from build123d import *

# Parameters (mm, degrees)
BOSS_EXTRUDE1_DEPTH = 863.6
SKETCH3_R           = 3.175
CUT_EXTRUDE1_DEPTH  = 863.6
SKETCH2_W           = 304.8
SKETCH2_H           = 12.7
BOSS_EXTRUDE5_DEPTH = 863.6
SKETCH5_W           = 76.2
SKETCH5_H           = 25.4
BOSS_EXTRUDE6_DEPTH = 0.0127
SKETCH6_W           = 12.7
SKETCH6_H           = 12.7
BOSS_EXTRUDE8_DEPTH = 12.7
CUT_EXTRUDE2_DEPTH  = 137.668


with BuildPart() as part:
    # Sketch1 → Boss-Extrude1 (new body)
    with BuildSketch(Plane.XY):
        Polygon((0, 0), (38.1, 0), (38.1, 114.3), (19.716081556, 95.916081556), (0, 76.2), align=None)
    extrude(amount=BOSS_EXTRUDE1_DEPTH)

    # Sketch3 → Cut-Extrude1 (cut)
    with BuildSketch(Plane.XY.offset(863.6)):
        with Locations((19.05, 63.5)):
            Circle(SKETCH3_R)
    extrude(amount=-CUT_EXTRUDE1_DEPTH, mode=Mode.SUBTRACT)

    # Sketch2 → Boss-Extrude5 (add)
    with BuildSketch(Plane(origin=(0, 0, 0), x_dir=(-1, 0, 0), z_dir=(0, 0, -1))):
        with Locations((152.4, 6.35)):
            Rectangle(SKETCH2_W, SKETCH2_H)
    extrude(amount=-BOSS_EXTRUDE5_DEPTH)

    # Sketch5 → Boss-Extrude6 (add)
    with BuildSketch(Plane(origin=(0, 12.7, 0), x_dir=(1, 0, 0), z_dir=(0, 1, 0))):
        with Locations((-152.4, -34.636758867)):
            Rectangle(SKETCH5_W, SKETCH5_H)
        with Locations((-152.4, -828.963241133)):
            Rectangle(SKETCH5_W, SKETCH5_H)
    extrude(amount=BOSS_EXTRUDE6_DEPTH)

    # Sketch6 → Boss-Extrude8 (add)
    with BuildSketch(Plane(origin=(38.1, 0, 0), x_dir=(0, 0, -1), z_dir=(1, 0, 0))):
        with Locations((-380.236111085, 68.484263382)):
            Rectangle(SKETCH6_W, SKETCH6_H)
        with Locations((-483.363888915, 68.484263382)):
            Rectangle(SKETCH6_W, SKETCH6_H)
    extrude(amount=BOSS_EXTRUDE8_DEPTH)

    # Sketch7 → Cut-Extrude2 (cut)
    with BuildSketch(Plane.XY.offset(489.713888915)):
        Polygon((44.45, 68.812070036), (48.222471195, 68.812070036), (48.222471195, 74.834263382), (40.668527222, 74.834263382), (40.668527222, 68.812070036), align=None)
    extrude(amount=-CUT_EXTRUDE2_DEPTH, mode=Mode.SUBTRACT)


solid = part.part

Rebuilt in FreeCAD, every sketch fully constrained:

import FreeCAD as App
import Part
import Sketcher
Q = App.Units.Quantity

doc = App.newDocument("Part")
params = doc.addObject("Spreadsheet::Sheet", "Params")
for row, (alias, value) in enumerate([
    ("sketch1_height", "3 in"),
    ("sketch1_width", "1.5 in"),
    ("sketch1_height2", "4.5 in"),
    ("pad1_length", "34 in"),
    ("sketch2_diameter", "0.25 in"),
    ("pocket1_length", "34 in"),
    ("sketch3_width", "12 in"),
    ("sketch3_height", "0.5 in"),
    ("pad2_length", "34 in"),
    ("sketch4_width", "3 in"),
    ("sketch4_height", "1 in"),
    ("pad3_length", "0.0005 in"),
    ("sketch5_width", "0.5 in"),
    ("pad4_length", "0.5 in"),
    ("pocket2_length", "5.42 in"),
], start=1):
    params.set(f"A{row}", alias)
    params.set(f"B{row}", "=" + value)
    params.setAlias(f"B{row}", alias)

body = doc.addObject("PartDesign::Body", "Body")

# Sketch on XY plane
sketch1 = body.newObject("Sketcher::SketchObject", "Sketch")
sketch1.AttachmentSupport = (doc.getObject("XY_Plane"), [""])
sketch1.MapMode = "FlatFace"
sketch1.addGeometry(Part.LineSegment(App.Vector(0, 0, 0), App.Vector(38.1, 0, 0)), False)
sketch1.addGeometry(Part.LineSegment(App.Vector(38.1, 0, 0), App.Vector(38.1, 114.3, 0)), False)
sketch1.addGeometry(Part.LineSegment(App.Vector(38.1, 114.3, 0), App.Vector(0, 76.2, 0)), False)
sketch1.addGeometry(Part.LineSegment(App.Vector(0, 76.2, 0), App.Vector(0, 0, 0)), False)
sketch1.addConstraint(Sketcher.Constraint("Coincident", 0, 2, 1, 1))
sketch1.addConstraint(Sketcher.Constraint("Coincident", 1, 2, 2, 1))
sketch1.addConstraint(Sketcher.Constraint("Coincident", 2, 2, 3, 1))
sketch1.addConstraint(Sketcher.Constraint("Coincident", 3, 2, 0, 1))
sketch1.addConstraint(Sketcher.Constraint("Horizontal", 0))
sketch1.addConstraint(Sketcher.Constraint("Vertical", 1))
sketch1.addConstraint(Sketcher.Constraint("Vertical", 3))
sketch1.addConstraint(Sketcher.Constraint("Coincident", 3, 2, -1, 1))
sketch1.addConstraint(Sketcher.Constraint("DistanceY", 3, 2, 3, 1, Q("3 in")))
sketch1.addConstraint(Sketcher.Constraint("DistanceX", 0, 1, 0, 2, Q("1.5 in")))
sketch1.addConstraint(Sketcher.Constraint("DistanceY", 1, 1, 1, 2, Q("4.5 in")))
sketch1.setExpression("Constraints[8]", "Params.sketch1_height")
sketch1.setExpression("Constraints[9]", "Params.sketch1_width")
sketch1.setExpression("Constraints[10]", "Params.sketch1_height2")
pad1 = body.newObject("PartDesign::Pad", "Pad")
pad1.Profile = sketch1
pad1.setExpression("Length", "Params.pad1_length")

# Sketch on XY plane
sketch2 = body.newObject("Sketcher::SketchObject", "Sketch001")
sketch2.AttachmentSupport = (doc.getObject("XY_Plane"), [""])
sketch2.MapMode = "FlatFace"
sketch2.AttachmentOffset = App.Placement(App.Vector(0, 0, 34 * 25.4), App.Rotation())
sketch2.addGeometry(Part.Circle(App.Vector(19.05, 63.5, 0), App.Vector(0, 0, 1), 3.175), False)
sketch2.addConstraint(Sketcher.Constraint("Diameter", 0, Q("0.25 in")))
sketch2.addConstraint(Sketcher.Constraint("DistanceY", -1, 1, 0, 3, Q("2.5 in")))
sketch2.addConstraint(Sketcher.Constraint("DistanceX", -1, 1, 0, 3, Q("0.75 in")))
sketch2.setExpression("Constraints[0]", "Params.sketch2_diameter")
pocket1 = body.newObject("PartDesign::Pocket", "Pocket")
pocket1.Profile = sketch2
pocket1.setExpression("Length", "Params.pocket1_length")

# Sketch on XY plane
sketch3 = body.newObject("Sketcher::SketchObject", "Sketch002")
sketch3.AttachmentSupport = (doc.getObject("XY_Plane"), [""])
sketch3.MapMode = "FlatFace"
sketch3.addGeometry(Part.LineSegment(App.Vector(0, 12.7, 0), App.Vector(0, 0, 0)), False)
sketch3.addGeometry(Part.LineSegment(App.Vector(0, 0, 0), App.Vector(-304.8, 0, 0)), False)
sketch3.addGeometry(Part.LineSegment(App.Vector(-304.8, 0, 0), App.Vector(-304.8, 12.7, 0)), False)
sketch3.addGeometry(Part.LineSegment(App.Vector(-304.8, 12.7, 0), App.Vector(0, 12.7, 0)), False)
sketch3.addConstraint(Sketcher.Constraint("Coincident", 0, 2, 1, 1))
sketch3.addConstraint(Sketcher.Constraint("Coincident", 1, 2, 2, 1))
sketch3.addConstraint(Sketcher.Constraint("Coincident", 2, 2, 3, 1))
sketch3.addConstraint(Sketcher.Constraint("Coincident", 3, 2, 0, 1))
sketch3.addConstraint(Sketcher.Constraint("Vertical", 0))
sketch3.addConstraint(Sketcher.Constraint("Horizontal", 1))
sketch3.addConstraint(Sketcher.Constraint("Vertical", 2))
sketch3.addConstraint(Sketcher.Constraint("Horizontal", 3))
sketch3.addConstraint(Sketcher.Constraint("Coincident", 0, 2, -1, 1))
sketch3.addConstraint(Sketcher.Constraint("DistanceX", 1, 2, 1, 1, Q("12 in")))
sketch3.addConstraint(Sketcher.Constraint("DistanceY", 0, 2, 0, 1, Q("0.5 in")))
sketch3.setExpression("Constraints[9]", "Params.sketch3_width")
sketch3.setExpression("Constraints[10]", "Params.sketch3_height")
pad2 = body.newObject("PartDesign::Pad", "Pad001")
pad2.Profile = sketch3
pad2.setExpression("Length", "Params.pad2_length")

# Sketch on XZ plane
sketch4 = body.newObject("Sketcher::SketchObject", "Sketch003")
sketch4.AttachmentSupport = (doc.getObject("XZ_Plane"), [""])
sketch4.MapMode = "FlatFace"
sketch4.AttachmentOffset = App.Placement(App.Vector(0, 0, -0.5 * 25.4), App.Rotation())
sketch4.addGeometry(Part.LineSegment(App.Vector(-190.5, 21.936759, 0), App.Vector(-190.5, 47.336759, 0)), False)
sketch4.addGeometry(Part.LineSegment(App.Vector(-190.5, 47.336759, 0), App.Vector(-114.3, 47.336759, 0)), False)
sketch4.addGeometry(Part.LineSegment(App.Vector(-114.3, 47.336759, 0), App.Vector(-114.3, 21.936759, 0)), False)
sketch4.addGeometry(Part.LineSegment(App.Vector(-114.3, 21.936759, 0), App.Vector(-190.5, 21.936759, 0)), False)
sketch4.addGeometry(Part.LineSegment(App.Vector(-190.5, 816.263241, 0), App.Vector(-190.5, 841.663241, 0)), False)
sketch4.addGeometry(Part.LineSegment(App.Vector(-190.5, 841.663241, 0), App.Vector(-114.3, 841.663241, 0)), False)
sketch4.addGeometry(Part.LineSegment(App.Vector(-114.3, 841.663241, 0), App.Vector(-114.3, 816.263241, 0)), False)
sketch4.addGeometry(Part.LineSegment(App.Vector(-114.3, 816.263241, 0), App.Vector(-190.5, 816.263241, 0)), False)
sketch4.addConstraint(Sketcher.Constraint("Coincident", 0, 2, 1, 1))
sketch4.addConstraint(Sketcher.Constraint("Coincident", 1, 2, 2, 1))
sketch4.addConstraint(Sketcher.Constraint("Coincident", 2, 2, 3, 1))
sketch4.addConstraint(Sketcher.Constraint("Coincident", 3, 2, 0, 1))
sketch4.addConstraint(Sketcher.Constraint("Coincident", 4, 2, 5, 1))
sketch4.addConstraint(Sketcher.Constraint("Coincident", 5, 2, 6, 1))
sketch4.addConstraint(Sketcher.Constraint("Coincident", 6, 2, 7, 1))
sketch4.addConstraint(Sketcher.Constraint("Coincident", 7, 2, 4, 1))
sketch4.addConstraint(Sketcher.Constraint("Vertical", 0))
sketch4.addConstraint(Sketcher.Constraint("Horizontal", 1))
sketch4.addConstraint(Sketcher.Constraint("Vertical", 2))
sketch4.addConstraint(Sketcher.Constraint("Horizontal", 3))
sketch4.addConstraint(Sketcher.Constraint("Vertical", 4))
sketch4.addConstraint(Sketcher.Constraint("Horizontal", 5))
sketch4.addConstraint(Sketcher.Constraint("Vertical", 6))
sketch4.addConstraint(Sketcher.Constraint("Horizontal", 7))
sketch4.addConstraint(Sketcher.Constraint("Vertical", 3, 2, 4, 2))
sketch4.addConstraint(Sketcher.Constraint("Vertical", 2, 2, 5, 2))
sketch4.addConstraint(Sketcher.Constraint("Equal", 2, 4))
sketch4.addConstraint(Sketcher.Constraint("DistanceX", 1, 1, 1, 2, Q("3 in")))
sketch4.addConstraint(Sketcher.Constraint("DistanceY", 0, 1, 0, 2, Q("1 in")))
sketch4.addConstraint(Sketcher.Constraint("DistanceX", 0, 2, -1, 1, Q("7.5 in")))
sketch4.addConstraint(Sketcher.Constraint("DistanceY", -1, 1, 0, 2, Q("47.336759 mm")))
sketch4.addConstraint(Sketcher.Constraint("DistanceY", -1, 1, 4, 2, Q("841.663241 mm")))
sketch4.setExpression("Constraints[19]", "Params.sketch4_width")
sketch4.setExpression("Constraints[20]", "Params.sketch4_height")
pad3 = body.newObject("PartDesign::Pad", "Pad002")
pad3.Profile = sketch4
pad3.setExpression("Length", "Params.pad3_length")
pad3.Reversed = True

# Sketch on YZ plane
sketch5 = body.newObject("Sketcher::SketchObject", "Sketch004")
sketch5.AttachmentSupport = (doc.getObject("YZ_Plane"), [""])
sketch5.MapMode = "FlatFace"
sketch5.AttachmentOffset = App.Placement(App.Vector(0, 0, 1.5 * 25.4), App.Rotation())
sketch5.addGeometry(Part.LineSegment(App.Vector(74.834263, 386.586111, 0), App.Vector(62.134263, 386.586111, 0)), False)
sketch5.addGeometry(Part.LineSegment(App.Vector(62.134263, 386.586111, 0), App.Vector(62.134263, 373.886111, 0)), False)
sketch5.addGeometry(Part.LineSegment(App.Vector(62.134263, 373.886111, 0), App.Vector(74.834263, 373.886111, 0)), False)
sketch5.addGeometry(Part.LineSegment(App.Vector(74.834263, 373.886111, 0), App.Vector(74.834263, 386.586111, 0)), False)
sketch5.addGeometry(Part.LineSegment(App.Vector(74.834263, 489.713889, 0), App.Vector(62.134263, 489.713889, 0)), False)
sketch5.addGeometry(Part.LineSegment(App.Vector(62.134263, 489.713889, 0), App.Vector(62.134263, 477.013889, 0)), False)
sketch5.addGeometry(Part.LineSegment(App.Vector(62.134263, 477.013889, 0), App.Vector(74.834263, 477.013889, 0)), False)
sketch5.addGeometry(Part.LineSegment(App.Vector(74.834263, 477.013889, 0), App.Vector(74.834263, 489.713889, 0)), False)
sketch5.addConstraint(Sketcher.Constraint("Coincident", 0, 2, 1, 1))
sketch5.addConstraint(Sketcher.Constraint("Coincident", 1, 2, 2, 1))
sketch5.addConstraint(Sketcher.Constraint("Coincident", 2, 2, 3, 1))
sketch5.addConstraint(Sketcher.Constraint("Coincident", 3, 2, 0, 1))
sketch5.addConstraint(Sketcher.Constraint("Coincident", 4, 2, 5, 1))
sketch5.addConstraint(Sketcher.Constraint("Coincident", 5, 2, 6, 1))
sketch5.addConstraint(Sketcher.Constraint("Coincident", 6, 2, 7, 1))
sketch5.addConstraint(Sketcher.Constraint("Coincident", 7, 2, 4, 1))
sketch5.addConstraint(Sketcher.Constraint("Horizontal", 0))
sketch5.addConstraint(Sketcher.Constraint("Vertical", 1))
sketch5.addConstraint(Sketcher.Constraint("Horizontal", 2))
sketch5.addConstraint(Sketcher.Constraint("Vertical", 3))
sketch5.addConstraint(Sketcher.Constraint("Horizontal", 4))
sketch5.addConstraint(Sketcher.Constraint("Vertical", 5))
sketch5.addConstraint(Sketcher.Constraint("Horizontal", 6))
sketch5.addConstraint(Sketcher.Constraint("Vertical", 7))
sketch5.addConstraint(Sketcher.Constraint("Vertical", 1, 2, 4, 2))
sketch5.addConstraint(Sketcher.Constraint("Vertical", 3, 2, 6, 2))
sketch5.addConstraint(Sketcher.Constraint("Equal", 6, 1))
sketch5.addConstraint(Sketcher.Constraint("Equal", 3, 5))
sketch5.addConstraint(Sketcher.Constraint("DistanceX", 0, 2, 0, 1, Q("0.5 in")))
sketch5.addConstraint(Sketcher.Constraint("DistanceY", -1, 1, 0, 2, Q("386.586111 mm")))
sketch5.addConstraint(Sketcher.Constraint("DistanceY", -1, 1, 4, 2, Q("489.713889 mm")))
sketch5.addConstraint(Sketcher.Constraint("DistanceX", -1, 1, 0, 2, Q("62.134263 mm")))
sketch5.setExpression("Constraints[20]", "Params.sketch5_width")
pad4 = body.newObject("PartDesign::Pad", "Pad003")
pad4.Profile = sketch5
pad4.setExpression("Length", "Params.pad4_length")

# Sketch on XY plane
sketch6 = body.newObject("Sketcher::SketchObject", "Sketch005")
sketch6.AttachmentSupport = (doc.getObject("XY_Plane"), [""])
sketch6.MapMode = "FlatFace"
sketch6.AttachmentOffset = App.Placement(App.Vector(0, 0, 489.713889), App.Rotation())
sketch6.addGeometry(Part.LineSegment(App.Vector(48.222471, 68.81207, 0), App.Vector(48.222471, 74.834263, 0)), False)
sketch6.addGeometry(Part.LineSegment(App.Vector(48.222471, 74.834263, 0), App.Vector(40.668527, 74.834263, 0)), False)
sketch6.addGeometry(Part.LineSegment(App.Vector(40.668527, 74.834263, 0), App.Vector(40.668527, 68.81207, 0)), False)
sketch6.addGeometry(Part.LineSegment(App.Vector(40.668527, 68.81207, 0), App.Vector(48.222471, 68.81207, 0)), False)
sketch6.addConstraint(Sketcher.Constraint("Coincident", 0, 2, 1, 1))
sketch6.addConstraint(Sketcher.Constraint("Coincident", 1, 2, 2, 1))
sketch6.addConstraint(Sketcher.Constraint("Coincident", 2, 2, 3, 1))
sketch6.addConstraint(Sketcher.Constraint("Coincident", 3, 2, 0, 1))
sketch6.addConstraint(Sketcher.Constraint("Vertical", 0))
sketch6.addConstraint(Sketcher.Constraint("Horizontal", 1))
sketch6.addConstraint(Sketcher.Constraint("Vertical", 2))
sketch6.addConstraint(Sketcher.Constraint("Horizontal", 3))
sketch6.addConstraint(Sketcher.Constraint("DistanceX", 1, 2, 1, 1, Q("7.553944 mm")))
sketch6.addConstraint(Sketcher.Constraint("DistanceY", 0, 1, 0, 2, Q("6.022193 mm")))
sketch6.addConstraint(Sketcher.Constraint("DistanceX", -1, 1, 0, 2, Q("48.222471 mm")))
sketch6.addConstraint(Sketcher.Constraint("DistanceY", -1, 1, 2, 2, Q("68.81207 mm")))
pocket2 = body.newObject("PartDesign::Pocket", "Pocket001")
pocket2.Profile = sketch6
pocket2.setExpression("Length", "Params.pocket2_length")

doc.recompute()
